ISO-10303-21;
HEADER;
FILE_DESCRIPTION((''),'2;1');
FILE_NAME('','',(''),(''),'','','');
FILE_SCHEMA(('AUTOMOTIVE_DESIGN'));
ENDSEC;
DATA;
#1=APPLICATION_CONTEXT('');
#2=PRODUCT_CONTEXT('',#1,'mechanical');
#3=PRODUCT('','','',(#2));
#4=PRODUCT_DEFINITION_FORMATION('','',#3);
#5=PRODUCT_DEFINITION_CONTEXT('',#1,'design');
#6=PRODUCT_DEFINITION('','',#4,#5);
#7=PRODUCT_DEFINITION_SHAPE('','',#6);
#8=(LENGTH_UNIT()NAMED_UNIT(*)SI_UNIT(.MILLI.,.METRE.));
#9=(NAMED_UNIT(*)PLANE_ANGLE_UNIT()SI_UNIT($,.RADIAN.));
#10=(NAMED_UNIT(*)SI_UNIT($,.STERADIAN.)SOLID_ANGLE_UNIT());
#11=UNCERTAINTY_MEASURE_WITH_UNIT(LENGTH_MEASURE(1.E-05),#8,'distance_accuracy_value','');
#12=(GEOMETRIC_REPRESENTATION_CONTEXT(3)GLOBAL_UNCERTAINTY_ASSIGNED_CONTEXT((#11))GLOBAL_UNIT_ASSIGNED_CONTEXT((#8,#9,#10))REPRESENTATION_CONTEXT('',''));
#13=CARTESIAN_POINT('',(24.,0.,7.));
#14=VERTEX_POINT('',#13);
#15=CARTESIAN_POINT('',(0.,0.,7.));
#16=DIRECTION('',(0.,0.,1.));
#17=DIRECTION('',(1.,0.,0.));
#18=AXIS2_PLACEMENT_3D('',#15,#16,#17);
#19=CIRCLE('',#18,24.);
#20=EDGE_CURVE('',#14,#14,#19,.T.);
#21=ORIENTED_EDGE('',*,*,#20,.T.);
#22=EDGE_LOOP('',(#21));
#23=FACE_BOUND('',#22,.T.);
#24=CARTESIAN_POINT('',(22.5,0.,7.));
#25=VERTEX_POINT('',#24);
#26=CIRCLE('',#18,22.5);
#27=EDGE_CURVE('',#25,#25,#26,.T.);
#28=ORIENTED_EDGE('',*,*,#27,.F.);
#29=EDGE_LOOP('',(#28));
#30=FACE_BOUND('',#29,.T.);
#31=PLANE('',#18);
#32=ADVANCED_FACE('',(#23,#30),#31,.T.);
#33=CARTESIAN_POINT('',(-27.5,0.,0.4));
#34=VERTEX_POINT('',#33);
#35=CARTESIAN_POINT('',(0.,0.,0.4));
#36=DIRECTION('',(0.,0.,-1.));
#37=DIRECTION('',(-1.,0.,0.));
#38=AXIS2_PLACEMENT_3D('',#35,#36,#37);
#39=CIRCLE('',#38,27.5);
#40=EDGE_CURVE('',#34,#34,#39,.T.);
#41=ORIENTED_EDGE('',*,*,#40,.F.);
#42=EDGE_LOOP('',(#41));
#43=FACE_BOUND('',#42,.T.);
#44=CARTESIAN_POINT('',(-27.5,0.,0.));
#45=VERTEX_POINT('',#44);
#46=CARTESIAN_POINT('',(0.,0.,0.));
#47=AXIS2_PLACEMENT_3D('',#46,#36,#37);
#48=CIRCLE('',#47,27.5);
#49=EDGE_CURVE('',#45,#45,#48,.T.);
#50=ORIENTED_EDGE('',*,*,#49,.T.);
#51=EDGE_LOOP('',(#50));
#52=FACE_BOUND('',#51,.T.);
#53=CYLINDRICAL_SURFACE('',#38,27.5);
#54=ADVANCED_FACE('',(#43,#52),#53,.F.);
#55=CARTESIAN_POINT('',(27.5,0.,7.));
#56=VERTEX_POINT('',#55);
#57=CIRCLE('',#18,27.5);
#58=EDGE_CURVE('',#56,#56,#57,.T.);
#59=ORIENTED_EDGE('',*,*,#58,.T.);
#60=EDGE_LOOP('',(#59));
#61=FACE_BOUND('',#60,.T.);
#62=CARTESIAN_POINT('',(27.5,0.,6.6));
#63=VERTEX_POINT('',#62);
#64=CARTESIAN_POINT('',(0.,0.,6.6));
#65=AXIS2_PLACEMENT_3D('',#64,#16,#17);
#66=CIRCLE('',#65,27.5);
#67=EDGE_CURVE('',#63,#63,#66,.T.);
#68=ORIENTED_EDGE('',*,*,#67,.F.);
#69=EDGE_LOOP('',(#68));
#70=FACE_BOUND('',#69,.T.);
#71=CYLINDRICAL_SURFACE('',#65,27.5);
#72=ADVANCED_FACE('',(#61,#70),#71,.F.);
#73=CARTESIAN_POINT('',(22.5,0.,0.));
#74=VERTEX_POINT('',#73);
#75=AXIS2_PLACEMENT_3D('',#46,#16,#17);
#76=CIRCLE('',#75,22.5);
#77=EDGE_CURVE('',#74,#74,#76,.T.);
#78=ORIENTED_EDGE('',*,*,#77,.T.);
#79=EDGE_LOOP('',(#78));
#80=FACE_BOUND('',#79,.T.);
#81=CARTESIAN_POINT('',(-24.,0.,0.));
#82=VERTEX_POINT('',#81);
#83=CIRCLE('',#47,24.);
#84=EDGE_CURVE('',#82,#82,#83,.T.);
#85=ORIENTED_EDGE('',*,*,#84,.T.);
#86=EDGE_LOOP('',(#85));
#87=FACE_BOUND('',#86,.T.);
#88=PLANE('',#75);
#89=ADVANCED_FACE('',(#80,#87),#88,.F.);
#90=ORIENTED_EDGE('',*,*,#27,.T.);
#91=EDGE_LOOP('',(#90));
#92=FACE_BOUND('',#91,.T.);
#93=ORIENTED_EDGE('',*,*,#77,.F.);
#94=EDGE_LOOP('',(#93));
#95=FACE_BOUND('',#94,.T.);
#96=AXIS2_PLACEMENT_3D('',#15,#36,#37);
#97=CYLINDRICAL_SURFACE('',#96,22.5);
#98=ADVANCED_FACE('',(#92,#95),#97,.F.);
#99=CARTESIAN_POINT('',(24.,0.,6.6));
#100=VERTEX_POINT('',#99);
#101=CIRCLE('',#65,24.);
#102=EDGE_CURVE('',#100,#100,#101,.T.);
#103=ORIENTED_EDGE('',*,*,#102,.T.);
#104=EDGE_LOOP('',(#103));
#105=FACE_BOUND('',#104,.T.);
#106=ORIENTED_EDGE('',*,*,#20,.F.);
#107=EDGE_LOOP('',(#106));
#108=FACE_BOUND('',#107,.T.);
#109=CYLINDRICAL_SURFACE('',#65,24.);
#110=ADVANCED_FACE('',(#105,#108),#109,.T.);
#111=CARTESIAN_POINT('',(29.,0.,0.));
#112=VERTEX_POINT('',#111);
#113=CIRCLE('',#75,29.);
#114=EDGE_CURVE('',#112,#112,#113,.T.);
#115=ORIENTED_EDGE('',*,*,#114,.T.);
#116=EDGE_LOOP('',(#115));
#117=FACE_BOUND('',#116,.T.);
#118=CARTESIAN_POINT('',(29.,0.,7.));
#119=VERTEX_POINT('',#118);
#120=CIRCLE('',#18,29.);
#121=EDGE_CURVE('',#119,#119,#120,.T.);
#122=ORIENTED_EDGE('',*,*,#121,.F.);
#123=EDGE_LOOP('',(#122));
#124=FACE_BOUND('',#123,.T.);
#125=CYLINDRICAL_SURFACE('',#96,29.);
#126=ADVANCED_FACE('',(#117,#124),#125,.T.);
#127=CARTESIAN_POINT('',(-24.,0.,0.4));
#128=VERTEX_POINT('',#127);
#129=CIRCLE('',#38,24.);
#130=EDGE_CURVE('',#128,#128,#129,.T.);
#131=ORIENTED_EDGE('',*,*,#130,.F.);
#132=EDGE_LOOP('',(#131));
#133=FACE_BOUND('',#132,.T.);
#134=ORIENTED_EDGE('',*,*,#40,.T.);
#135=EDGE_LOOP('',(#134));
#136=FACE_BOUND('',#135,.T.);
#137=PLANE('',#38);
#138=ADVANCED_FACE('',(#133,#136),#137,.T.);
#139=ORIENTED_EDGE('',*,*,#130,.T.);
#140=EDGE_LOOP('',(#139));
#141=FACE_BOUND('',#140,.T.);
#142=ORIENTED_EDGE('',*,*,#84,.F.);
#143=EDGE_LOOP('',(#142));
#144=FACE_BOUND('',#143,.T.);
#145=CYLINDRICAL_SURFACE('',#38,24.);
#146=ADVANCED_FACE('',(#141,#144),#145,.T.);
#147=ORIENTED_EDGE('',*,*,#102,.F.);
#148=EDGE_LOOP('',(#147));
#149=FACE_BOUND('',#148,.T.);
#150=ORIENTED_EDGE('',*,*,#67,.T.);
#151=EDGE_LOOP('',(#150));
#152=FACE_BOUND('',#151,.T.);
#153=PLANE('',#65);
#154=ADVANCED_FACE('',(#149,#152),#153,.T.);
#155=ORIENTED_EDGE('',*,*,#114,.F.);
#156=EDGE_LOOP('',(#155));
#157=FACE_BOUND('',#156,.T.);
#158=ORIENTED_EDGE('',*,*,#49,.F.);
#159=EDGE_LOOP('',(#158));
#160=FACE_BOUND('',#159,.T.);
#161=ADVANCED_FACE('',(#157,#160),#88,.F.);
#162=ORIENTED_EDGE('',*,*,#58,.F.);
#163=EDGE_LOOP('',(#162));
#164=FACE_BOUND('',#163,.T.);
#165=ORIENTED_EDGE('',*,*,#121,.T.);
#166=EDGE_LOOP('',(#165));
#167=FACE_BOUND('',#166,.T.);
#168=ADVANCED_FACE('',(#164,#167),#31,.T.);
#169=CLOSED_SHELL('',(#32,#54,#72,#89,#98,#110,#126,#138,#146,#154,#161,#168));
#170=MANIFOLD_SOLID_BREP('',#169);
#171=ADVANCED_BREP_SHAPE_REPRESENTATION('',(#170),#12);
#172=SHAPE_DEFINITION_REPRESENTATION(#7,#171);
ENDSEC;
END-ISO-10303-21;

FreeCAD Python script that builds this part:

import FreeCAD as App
import Part
import Sketcher

doc = App.newDocument("Part")
params = doc.addObject("Spreadsheet::Sheet", "Params")
for row, (alias, value) in enumerate([
    ("sketch1_diameter", "58 mm"),
    ("sketch1_diameter2", "45 mm"),
    ("pad1_length", "7 mm"),
    ("sketch2_diameter", "55 mm"),
    ("sketch2_diameter2", "48 mm"),
    ("pocket1_length", "0.4 mm"),
    ("sketch3_diameter", "55 mm"),
    ("sketch3_diameter2", "48 mm"),
    ("pocket2_length", "0.4 mm"),
], start=1):
    params.set(f"A{row}", alias)
    params.set(f"B{row}", "=" + value)
    params.setAlias(f"B{row}", alias)

body = doc.addObject("PartDesign::Body", "Body")

sketch1 = body.newObject("Sketcher::SketchObject", "Sketch")
sketch1.AttachmentSupport = (doc.getObject("XY_Plane"), [""])
sketch1.MapMode = "FlatFace"
sketch1.addGeometry([
    Part.Circle(App.Vector(0, 0, 0), App.Vector(0, 0, 1), 29),
    Part.Circle(App.Vector(0, 0, 0), App.Vector(0, 0, 1), 22),
], False)
sketch1.addConstraint([
    Sketcher.Constraint("Coincident", 0, 3, -1, 1),
    Sketcher.Constraint("Coincident", 1, 3, -1, 1),
    Sketcher.Constraint("Diameter", 0, 58.0),
    Sketcher.Constraint("Diameter", 1, 45.0),
])
sketch1.setExpression("Constraints[2]", "Params.sketch1_diameter")
sketch1.setExpression("Constraints[3]", "Params.sketch1_diameter2")
pad1 = body.newObject("PartDesign::Pad", "Pad")
pad1.Profile = sketch1
pad1.setExpression("Length", "Params.pad1_length")

sketch2 = body.newObject("Sketcher::SketchObject", "Sketch001")
sketch2.AttachmentSupport = (doc.getObject("XY_Plane"), [""])
sketch2.MapMode = "FlatFace"
sketch2.AttachmentOffset = App.Placement(App.Vector(0, 0, 7), App.Rotation())
sketch2.addGeometry([
    Part.Circle(App.Vector(0, 0, 0), App.Vector(0, 0, 1), 28),
    Part.Circle(App.Vector(0, 0, 0), App.Vector(0, 0, 1), 24),
], False)
sketch2.addConstraint([
    Sketcher.Constraint("Coincident", 0, 3, -1, 1),
    Sketcher.Constraint("Coincident", 1, 3, -1, 1),
    Sketcher.Constraint("Diameter", 0, 55.0),
    Sketcher.Constraint("Diameter", 1, 48.0),
])
sketch2.setExpression("Constraints[2]", "Params.sketch2_diameter")
sketch2.setExpression("Constraints[3]", "Params.sketch2_diameter2")
pocket1 = body.newObject("PartDesign::Pocket", "Pocket")
pocket1.Profile = sketch2
pocket1.setExpression("Length", "Params.pocket1_length")

sketch3 = body.newObject("Sketcher::SketchObject", "Sketch002")
sketch3.AttachmentSupport = (doc.getObject("XY_Plane"), [""])
sketch3.MapMode = "FlatFace"
sketch3.AttachmentOffset = App.Placement(App.Vector(0, 0, 0.4), App.Rotation())
sketch3.addGeometry([
    Part.Circle(App.Vector(0, 0, 0), App.Vector(0, 0, 1), 28),
    Part.Circle(App.Vector(0, 0, 0), App.Vector(0, 0, 1), 24),
], False)
sketch3.addConstraint([
    Sketcher.Constraint("Coincident", 0, 3, -1, 1),
    Sketcher.Constraint("Coincident", 1, 3, -1, 1),
    Sketcher.Constraint("Diameter", 0, 55.0),
    Sketcher.Constraint("Diameter", 1, 48.0),
])
sketch3.setExpression("Constraints[2]", "Params.sketch3_diameter")
sketch3.setExpression("Constraints[3]", "Params.sketch3_diameter2")
pocket2 = body.newObject("PartDesign::Pocket", "Pocket001")
pocket2.Profile = sketch3
pocket2.setExpression("Length", "Params.pocket2_length")

doc.recompute()
